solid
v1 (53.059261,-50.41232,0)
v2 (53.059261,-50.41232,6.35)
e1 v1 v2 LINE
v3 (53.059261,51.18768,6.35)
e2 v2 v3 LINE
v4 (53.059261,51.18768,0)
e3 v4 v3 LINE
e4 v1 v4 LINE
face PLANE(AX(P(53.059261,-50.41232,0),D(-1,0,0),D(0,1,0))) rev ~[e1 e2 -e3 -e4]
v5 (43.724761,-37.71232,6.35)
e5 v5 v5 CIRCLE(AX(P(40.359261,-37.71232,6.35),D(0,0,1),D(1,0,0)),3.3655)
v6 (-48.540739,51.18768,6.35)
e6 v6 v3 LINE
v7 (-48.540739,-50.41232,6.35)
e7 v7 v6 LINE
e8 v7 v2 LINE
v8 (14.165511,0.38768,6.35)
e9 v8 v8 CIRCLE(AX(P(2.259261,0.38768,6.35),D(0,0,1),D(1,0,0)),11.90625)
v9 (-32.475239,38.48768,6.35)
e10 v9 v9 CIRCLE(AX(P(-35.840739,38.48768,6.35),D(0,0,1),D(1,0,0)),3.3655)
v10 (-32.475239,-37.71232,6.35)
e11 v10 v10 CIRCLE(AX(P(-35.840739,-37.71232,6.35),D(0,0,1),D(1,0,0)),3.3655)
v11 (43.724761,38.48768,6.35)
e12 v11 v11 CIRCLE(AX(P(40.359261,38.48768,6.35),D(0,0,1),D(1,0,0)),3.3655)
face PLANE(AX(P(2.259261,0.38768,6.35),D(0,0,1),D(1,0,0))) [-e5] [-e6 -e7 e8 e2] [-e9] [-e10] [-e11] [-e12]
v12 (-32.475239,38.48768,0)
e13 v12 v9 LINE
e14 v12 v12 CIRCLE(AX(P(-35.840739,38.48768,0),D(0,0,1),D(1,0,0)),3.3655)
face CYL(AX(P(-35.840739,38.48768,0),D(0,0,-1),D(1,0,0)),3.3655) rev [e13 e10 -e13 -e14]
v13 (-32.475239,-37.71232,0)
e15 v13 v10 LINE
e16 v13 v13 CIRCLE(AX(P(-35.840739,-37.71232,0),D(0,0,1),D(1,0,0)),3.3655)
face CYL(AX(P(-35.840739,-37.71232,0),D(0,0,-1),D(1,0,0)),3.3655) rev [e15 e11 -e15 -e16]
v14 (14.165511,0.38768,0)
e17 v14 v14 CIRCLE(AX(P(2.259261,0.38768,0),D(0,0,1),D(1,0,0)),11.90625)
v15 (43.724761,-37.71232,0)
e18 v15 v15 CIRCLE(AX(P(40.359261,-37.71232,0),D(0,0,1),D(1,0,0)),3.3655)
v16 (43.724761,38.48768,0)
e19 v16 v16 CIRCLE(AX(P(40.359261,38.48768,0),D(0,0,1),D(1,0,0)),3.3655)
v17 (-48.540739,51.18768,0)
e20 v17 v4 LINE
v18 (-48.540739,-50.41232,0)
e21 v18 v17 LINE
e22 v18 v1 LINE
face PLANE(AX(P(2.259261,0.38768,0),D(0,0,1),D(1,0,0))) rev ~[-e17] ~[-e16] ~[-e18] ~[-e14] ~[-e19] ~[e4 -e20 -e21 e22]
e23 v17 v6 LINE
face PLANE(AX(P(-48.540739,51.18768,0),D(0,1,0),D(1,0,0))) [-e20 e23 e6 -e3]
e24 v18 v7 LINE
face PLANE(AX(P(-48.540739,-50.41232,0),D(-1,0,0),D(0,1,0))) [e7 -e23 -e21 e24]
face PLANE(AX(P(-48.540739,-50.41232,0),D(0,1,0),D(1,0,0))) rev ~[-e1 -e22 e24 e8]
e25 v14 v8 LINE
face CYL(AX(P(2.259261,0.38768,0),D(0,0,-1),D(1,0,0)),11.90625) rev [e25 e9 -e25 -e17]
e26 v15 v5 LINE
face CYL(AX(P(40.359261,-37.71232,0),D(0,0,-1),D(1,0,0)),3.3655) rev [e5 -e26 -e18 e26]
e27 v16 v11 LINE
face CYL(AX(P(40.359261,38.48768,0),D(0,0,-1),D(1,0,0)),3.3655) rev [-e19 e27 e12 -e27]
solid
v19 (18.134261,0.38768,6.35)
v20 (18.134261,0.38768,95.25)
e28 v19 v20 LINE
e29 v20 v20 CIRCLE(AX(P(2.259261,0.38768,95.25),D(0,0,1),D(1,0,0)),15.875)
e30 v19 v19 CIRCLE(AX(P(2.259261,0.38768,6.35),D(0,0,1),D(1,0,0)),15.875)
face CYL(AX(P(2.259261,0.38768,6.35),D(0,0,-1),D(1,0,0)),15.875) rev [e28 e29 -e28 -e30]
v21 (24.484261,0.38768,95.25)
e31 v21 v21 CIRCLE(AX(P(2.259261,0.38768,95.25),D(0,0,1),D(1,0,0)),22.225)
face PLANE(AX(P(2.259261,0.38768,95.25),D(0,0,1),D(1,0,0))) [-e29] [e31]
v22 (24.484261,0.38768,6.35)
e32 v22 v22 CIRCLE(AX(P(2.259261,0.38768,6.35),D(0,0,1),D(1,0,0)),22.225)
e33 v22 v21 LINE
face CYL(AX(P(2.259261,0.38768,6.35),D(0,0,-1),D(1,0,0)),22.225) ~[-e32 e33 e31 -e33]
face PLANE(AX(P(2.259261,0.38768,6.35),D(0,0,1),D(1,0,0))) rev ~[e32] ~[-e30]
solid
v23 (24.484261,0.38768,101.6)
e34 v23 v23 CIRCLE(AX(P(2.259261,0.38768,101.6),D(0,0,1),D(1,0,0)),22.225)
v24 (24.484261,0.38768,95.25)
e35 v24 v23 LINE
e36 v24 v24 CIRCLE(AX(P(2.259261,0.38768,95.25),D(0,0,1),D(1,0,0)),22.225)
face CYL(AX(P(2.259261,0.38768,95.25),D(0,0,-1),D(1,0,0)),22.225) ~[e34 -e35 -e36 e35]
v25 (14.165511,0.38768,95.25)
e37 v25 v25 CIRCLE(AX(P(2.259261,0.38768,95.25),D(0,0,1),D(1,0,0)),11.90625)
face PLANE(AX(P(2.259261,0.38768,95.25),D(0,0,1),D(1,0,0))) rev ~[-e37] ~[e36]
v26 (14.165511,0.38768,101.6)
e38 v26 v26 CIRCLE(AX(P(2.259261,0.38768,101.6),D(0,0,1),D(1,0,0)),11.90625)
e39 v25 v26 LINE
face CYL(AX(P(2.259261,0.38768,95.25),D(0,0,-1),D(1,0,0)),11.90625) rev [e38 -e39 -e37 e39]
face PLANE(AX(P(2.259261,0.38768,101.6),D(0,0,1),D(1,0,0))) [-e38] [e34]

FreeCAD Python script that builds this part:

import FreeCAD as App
import Part
import Sketcher
Q = App.Units.Quantity

doc = App.newDocument("Part")
body = doc.addObject("PartDesign::Body", "Body")

# Sketch on XY plane
sketch1 = doc.addObject("Sketcher::SketchObject", "Sketch")
body.addObject(sketch1)
sketch1.AttachmentSupport = (doc.XY_Plane, [""])
sketch1.MapMode = "FlatFace"
sketch1.addGeometry([
    Part.LineSegment(App.Vector(-48.5, 51.2, 0), App.Vector(-48.5, -50.4, 0)),  # 0
    Part.LineSegment(App.Vector(-48.5, -50.4, 0), App.Vector(53.1, -50.4, 0)),  # 1
    Part.LineSegment(App.Vector(53.1, -50.4, 0), App.Vector(53.1, 51.2, 0)),  # 2
    Part.LineSegment(App.Vector(53.1, 51.2, 0), App.Vector(-48.5, 51.2, 0)),  # 3
    Part.Circle(App.Vector(-35.8, -37.7, 0), App.Vector(0, 0, 1), 3.4),  # 4
    Part.Circle(App.Vector(40.4, -37.7, 0), App.Vector(0, 0, 1), 3.4),  # 5
    Part.Circle(App.Vector(-35.8, 38.5, 0), App.Vector(0, 0, 1), 3.4),  # 6
    Part.Circle(App.Vector(2.3, 0.4, 0), App.Vector(0, 0, 1), 11.9),  # 7
    Part.Circle(App.Vector(40.4, 38.5, 0), App.Vector(0, 0, 1), 3.4),  # 8
], False)
sketch1.addConstraint([
    Sketcher.Constraint("Coincident", 0, 2, 1, 1),
    Sketcher.Constraint("Coincident", 1, 2, 2, 1),
    Sketcher.Constraint("Coincident", 2, 2, 3, 1),
    Sketcher.Constraint("Coincident", 3, 2, 0, 1),
    Sketcher.Constraint("Vertical", 0),
    Sketcher.Constraint("Horizontal", 1),
    Sketcher.Constraint("Vertical", 2),
    Sketcher.Constraint("Horizontal", 3),
    Sketcher.Constraint("Equal", 4, 5),
    Sketcher.Constraint("Equal", 5, 6),
    Sketcher.Constraint("Equal", 6, 8),
    Sketcher.Constraint("Horizontal", 4, 3, 5, 3),
    Sketcher.Constraint("Horizontal", 6, 3, 8, 3),
    Sketcher.Constraint("Vertical", 4, 3, 6, 3),
    Sketcher.Constraint("Vertical", 5, 3, 8, 3),
    Sketcher.Constraint("Equal", 3, 0),
    Sketcher.Constraint("DistanceX", 1, 1, 1, 2, Q("4 in")),
    Sketcher.Constraint("Diameter", 4, Q("0.265 in")),
    Sketcher.Constraint("Diameter", 7, Q("0.9375 in")),
    Sketcher.Constraint("DistanceX", 4, 3, 5, 3, Q("3 in")),
    Sketcher.Constraint("DistanceY", 4, 3, 6, 3, Q("3 in")),
    Sketcher.Constraint("DistanceX", 0, 2, 7, 3, Q("2 in")),
    Sketcher.Constraint("DistanceY", 0, 2, 7, 3, Q("2 in")),
    Sketcher.Constraint("DistanceX", 4, 3, 7, 3, Q("1.5 in")),
    Sketcher.Constraint("DistanceY", 4, 3, 7, 3, Q("1.5 in")),
    Sketcher.Constraint("DistanceX", 4, 3, -1, 1, 35.840739),
    Sketcher.Constraint("DistanceY", 4, 3, -1, 1, 37.71232),
])
pad1 = doc.addObject("PartDesign::Pad", "Pad")
body.addObject(pad1)
pad1.Profile = sketch1
pad1.Length = Q("0.25 in")
body2 = doc.addObject("PartDesign::Body", "Body001")

# Sketch on XY plane
sketch2 = doc.addObject("Sketcher::SketchObject", "Sketch001")
body2.addObject(sketch2)
sketch2.AttachmentSupport = (doc.getObject("XY_Plane001"), [""])
sketch2.MapMode = "FlatFace"
sketch2.AttachmentOffset = App.Placement(App.Vector(0, 0, 0.25 * 25.4), App.Rotation())
sketch2.addGeometry([
    Part.Circle(App.Vector(2, 0, 0), App.Vector(0, 0, 1), 22),
    Part.Circle(App.Vector(2, 0, 0), App.Vector(0, 0, 1), 16),
], False)
sketch2.addConstraint([
    Sketcher.Constraint("Coincident", 1, 3, 0, 3),
    Sketcher.Constraint("Diameter", 0, Q("1.75 in")),
    Sketcher.Constraint("Diameter", 1, Q("1.25 in")),
    Sketcher.Constraint("DistanceX", -1, 1, 0, 3, 2.259261),
    Sketcher.Constraint("DistanceY", -1, 1, 0, 3, 0.38768),
])
pad2 = doc.addObject("PartDesign::Pad", "Pad001")
body2.addObject(pad2)
pad2.Profile = sketch2
pad2.Length = Q("3.5 in")
body3 = doc.addObject("PartDesign::Body", "Body002")

# Sketch on XY plane
sketch3 = doc.addObject("Sketcher::SketchObject", "Sketch002")
body3.addObject(sketch3)
sketch3.AttachmentSupport = (doc.getObject("XY_Plane002"), [""])
sketch3.MapMode = "FlatFace"
sketch3.AttachmentOffset = App.Placement(App.Vector(0, 0, 3.75 * 25.4), App.Rotation())
sketch3.addGeometry([
    Part.Circle(App.Vector(2, 0, 0), App.Vector(0, 0, 1), 22),
    Part.Circle(App.Vector(2, 0, 0), App.Vector(0, 0, 1), 12),
], False)
sketch3.addConstraint([
    Sketcher.Constraint("Coincident", 1, 3, 0, 3),
    Sketcher.Constraint("Diameter", 0, Q("1.75 in")),
    Sketcher.Constraint("Diameter", 1, Q("0.9375 in")),
    Sketcher.Constraint("DistanceX", -1, 1, 0, 3, 2.259261),
    Sketcher.Constraint("DistanceY", -1, 1, 0, 3, 0.38768),
])
pad3 = doc.addObject("PartDesign::Pad", "Pad002")
body3.addObject(pad3)
pad3.Profile = sketch3
pad3.Length = Q("0.25 in")

doc.recompute()
